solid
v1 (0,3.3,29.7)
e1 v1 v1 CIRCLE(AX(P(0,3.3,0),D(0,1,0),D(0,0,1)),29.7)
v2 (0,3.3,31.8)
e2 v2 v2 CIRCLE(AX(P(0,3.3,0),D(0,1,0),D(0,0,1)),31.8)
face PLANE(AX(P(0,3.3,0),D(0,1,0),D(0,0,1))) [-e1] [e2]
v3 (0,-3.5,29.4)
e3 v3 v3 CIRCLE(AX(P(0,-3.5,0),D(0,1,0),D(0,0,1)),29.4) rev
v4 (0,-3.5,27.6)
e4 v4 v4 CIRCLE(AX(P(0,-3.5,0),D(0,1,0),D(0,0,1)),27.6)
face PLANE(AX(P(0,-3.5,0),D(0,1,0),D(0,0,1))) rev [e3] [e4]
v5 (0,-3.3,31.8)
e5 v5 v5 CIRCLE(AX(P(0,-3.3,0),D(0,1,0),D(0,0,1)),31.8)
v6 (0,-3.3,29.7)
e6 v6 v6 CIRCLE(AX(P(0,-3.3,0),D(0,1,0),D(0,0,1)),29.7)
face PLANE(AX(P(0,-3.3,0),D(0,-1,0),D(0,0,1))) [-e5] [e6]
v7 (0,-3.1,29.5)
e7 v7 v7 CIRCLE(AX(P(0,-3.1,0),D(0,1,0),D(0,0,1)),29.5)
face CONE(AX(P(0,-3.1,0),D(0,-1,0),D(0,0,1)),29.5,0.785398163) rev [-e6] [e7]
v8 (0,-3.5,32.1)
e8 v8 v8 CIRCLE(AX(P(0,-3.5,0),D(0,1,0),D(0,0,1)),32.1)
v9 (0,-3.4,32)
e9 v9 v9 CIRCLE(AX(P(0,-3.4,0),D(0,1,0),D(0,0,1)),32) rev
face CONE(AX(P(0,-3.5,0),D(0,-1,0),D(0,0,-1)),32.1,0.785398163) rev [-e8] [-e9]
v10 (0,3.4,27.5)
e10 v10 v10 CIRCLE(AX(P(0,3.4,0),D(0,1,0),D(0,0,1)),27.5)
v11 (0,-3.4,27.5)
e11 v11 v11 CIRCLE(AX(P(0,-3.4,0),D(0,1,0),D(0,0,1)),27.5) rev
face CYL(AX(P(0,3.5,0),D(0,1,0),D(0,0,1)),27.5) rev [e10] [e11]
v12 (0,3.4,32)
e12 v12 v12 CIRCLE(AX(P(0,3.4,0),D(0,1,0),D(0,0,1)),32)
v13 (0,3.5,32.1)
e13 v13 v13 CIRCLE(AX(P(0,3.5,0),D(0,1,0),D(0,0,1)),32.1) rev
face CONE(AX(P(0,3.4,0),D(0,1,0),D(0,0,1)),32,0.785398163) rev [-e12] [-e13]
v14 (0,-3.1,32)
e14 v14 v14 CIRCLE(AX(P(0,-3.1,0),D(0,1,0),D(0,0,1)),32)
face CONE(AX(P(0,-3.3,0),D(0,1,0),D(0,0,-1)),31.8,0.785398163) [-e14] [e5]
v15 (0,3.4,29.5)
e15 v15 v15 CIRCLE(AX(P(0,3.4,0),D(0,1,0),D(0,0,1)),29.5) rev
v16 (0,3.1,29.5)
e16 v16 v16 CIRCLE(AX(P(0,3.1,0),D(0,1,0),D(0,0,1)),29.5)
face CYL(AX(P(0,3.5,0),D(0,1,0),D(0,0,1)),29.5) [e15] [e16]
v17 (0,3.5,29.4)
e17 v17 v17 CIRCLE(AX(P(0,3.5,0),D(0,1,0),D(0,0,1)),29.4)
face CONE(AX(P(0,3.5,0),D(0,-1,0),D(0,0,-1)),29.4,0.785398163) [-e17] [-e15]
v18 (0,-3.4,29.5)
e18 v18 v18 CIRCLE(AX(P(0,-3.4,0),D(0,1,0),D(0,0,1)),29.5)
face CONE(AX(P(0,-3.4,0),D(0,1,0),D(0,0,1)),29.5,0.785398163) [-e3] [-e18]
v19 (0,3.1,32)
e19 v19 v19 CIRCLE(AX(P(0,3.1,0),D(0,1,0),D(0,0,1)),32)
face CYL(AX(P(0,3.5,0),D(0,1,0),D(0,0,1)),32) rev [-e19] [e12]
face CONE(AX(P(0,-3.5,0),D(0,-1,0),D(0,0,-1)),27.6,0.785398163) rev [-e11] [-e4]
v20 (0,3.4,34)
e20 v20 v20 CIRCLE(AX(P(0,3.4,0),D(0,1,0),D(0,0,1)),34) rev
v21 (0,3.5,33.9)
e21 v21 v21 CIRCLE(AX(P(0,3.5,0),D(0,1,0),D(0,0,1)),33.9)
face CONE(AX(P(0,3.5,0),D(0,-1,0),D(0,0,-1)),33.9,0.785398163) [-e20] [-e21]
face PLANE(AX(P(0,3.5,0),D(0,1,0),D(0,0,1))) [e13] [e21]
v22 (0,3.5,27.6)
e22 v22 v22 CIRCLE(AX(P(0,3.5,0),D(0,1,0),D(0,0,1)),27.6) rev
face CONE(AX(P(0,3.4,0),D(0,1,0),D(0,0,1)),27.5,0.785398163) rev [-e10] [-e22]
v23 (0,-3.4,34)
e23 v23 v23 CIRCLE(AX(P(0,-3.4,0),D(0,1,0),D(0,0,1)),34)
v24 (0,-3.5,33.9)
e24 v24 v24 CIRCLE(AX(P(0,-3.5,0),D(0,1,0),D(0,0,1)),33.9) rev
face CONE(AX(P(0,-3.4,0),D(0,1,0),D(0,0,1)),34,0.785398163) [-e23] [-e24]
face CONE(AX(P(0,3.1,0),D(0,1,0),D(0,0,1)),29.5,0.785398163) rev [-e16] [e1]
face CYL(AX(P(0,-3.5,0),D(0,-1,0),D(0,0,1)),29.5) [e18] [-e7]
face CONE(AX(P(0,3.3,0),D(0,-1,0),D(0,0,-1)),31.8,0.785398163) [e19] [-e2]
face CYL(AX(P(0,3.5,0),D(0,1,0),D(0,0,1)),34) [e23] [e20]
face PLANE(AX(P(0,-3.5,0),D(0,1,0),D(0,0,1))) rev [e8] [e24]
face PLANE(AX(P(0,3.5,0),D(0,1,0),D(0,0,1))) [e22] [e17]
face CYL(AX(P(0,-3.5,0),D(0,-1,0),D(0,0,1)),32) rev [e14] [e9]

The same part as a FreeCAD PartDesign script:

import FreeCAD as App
import Part
import Sketcher

V = App.Vector


def edges_at(feature, points):
    """Names of the edges that pass closest to the given points."""
    edges = feature.Shape.Edges
    near = lambda p: min(range(len(edges)), key=lambda i: edges[i].distToShape(Part.Vertex(*p))[0])
    return sorted({f"Edge{near(p) + 1}" for p in points})

doc = App.newDocument("Part")
body = doc.addObject("PartDesign::Body", "Body")

# Sketch on YZ plane
sketch1 = body.newObject("Sketcher::SketchObject", "Sketch")
sketch1.AttachmentSupport = (doc.getObject("YZ_Plane"), [""])
sketch1.MapMode = "FlatFace"
sketch1.addGeometry([
    Part.LineSegment(V(3.5, -27.5, 0), V(-3.5, -27.5, 0)),
    Part.LineSegment(V(-3.5, -27.5, 0), V(-3.5, -34, 0)),
    Part.LineSegment(V(-3.5, -34, 0), V(3.5, -34, 0)),
    Part.LineSegment(V(3.5, -34, 0), V(3.5, -27.5, 0)),
], False)
sketch1.addConstraint([
    Sketcher.Constraint("Coincident", 0, 2, 1, 1),
    Sketcher.Constraint("Coincident", 1, 2, 2, 1),
    Sketcher.Constraint("Coincident", 2, 2, 3, 1),
    Sketcher.Constraint("Coincident", 3, 2, 0, 1),
    Sketcher.Constraint("Horizontal", 0),
    Sketcher.Constraint("Vertical", 1),
    Sketcher.Constraint("Horizontal", 2),
    Sketcher.Constraint("Vertical", 3),
    Sketcher.Constraint("DistanceX", 0, 2, 0, 1, 7.0),
    Sketcher.Constraint("DistanceY", 1, 2, 1, 1, 6.5),
    Sketcher.Constraint("DistanceY", 1, 2, -1, 1, 34.0),
    Sketcher.Constraint("DistanceX", 0, 2, -1, 1, 3.5),
])
revolution = body.newObject("PartDesign::Revolution", "Revolution")
revolution.Profile = sketch1
revolution.ReferenceAxis = (sketch1, ["H_Axis"])
revolution.Angle = 360

# Sketch on YZ plane
sketch2 = body.newObject("Sketcher::SketchObject", "Sketch001")
sketch2.AttachmentSupport = (doc.getObject("YZ_Plane"), [""])
sketch2.MapMode = "FlatFace"
sketch2.addGeometry([
    Part.LineSegment(V(3.3, -31.8, 0), V(3.1, -32, 0)),  # 0
    Part.LineSegment(V(3.1, -32, 0), V(3.5, -32, 0)),  # 1
    Part.LineSegment(V(3.5, -32, 0), V(3.5, -29.5, 0)),  # 2
    Part.LineSegment(V(3.5, -29.5, 0), V(3.1, -29.5, 0)),  # 3
    Part.LineSegment(V(3.1, -29.5, 0), V(3.3, -29.7, 0)),  # 4
    Part.LineSegment(V(3.3, -29.7, 0), V(3.3, -31.8, 0)),  # 5
], False)
sketch2.addConstraint([
    Sketcher.Constraint("Coincident", 0, 2, 1, 1),
    Sketcher.Constraint("Coincident", 1, 2, 2, 1),
    Sketcher.Constraint("Coincident", 2, 2, 3, 1),
    Sketcher.Constraint("Coincident", 3, 2, 4, 1),
    Sketcher.Constraint("Coincident", 4, 2, 5, 1),
    Sketcher.Constraint("Coincident", 5, 2, 0, 1),
    Sketcher.Constraint("Horizontal", 1),
    Sketcher.Constraint("Vertical", 2),
    Sketcher.Constraint("Horizontal", 3),
    Sketcher.Constraint("Vertical", 5),
    Sketcher.Constraint("Perpendicular", 0, 4),
    Sketcher.Constraint("Vertical", 0, 2, 3, 2),
    Sketcher.Constraint("Equal", 0, 4),
    Sketcher.Constraint("DistanceX", 1, 1, 1, 2, 0.4),
    Sketcher.Constraint("DistanceY", 2, 1, 2, 2, 2.5),
    Sketcher.Constraint("DistanceY", 5, 2, 5, 1, 2.1),
    Sketcher.Constraint("DistanceY", 0, 2, -1, 1, 32.0),
    Sketcher.Constraint("DistanceX", -1, 1, 0, 2, 3.1),
])
groove = body.newObject("PartDesign::Groove", "Groove")
groove.Profile = sketch2
groove.ReferenceAxis = (sketch2, ["H_Axis"])
groove.Angle = 360
doc.recompute()

mirrored = body.newObject("PartDesign::Mirrored", "Mirrored")
mirrored.Originals = [groove]
mirrored.MirrorPlane = (doc.getObject("XZ_Plane"), [""])
body.Tip = mirrored
doc.recompute()

chamfer = body.newObject("PartDesign::Chamfer", "Chamfer")
chamfer.Base = (mirrored, edges_at(mirrored, [
    (0, 3.5, 32),
    (0, 3.5, 29.5),
    (0, -3.5, 32),
    (0, -3.5, 29.5),
    (0, 3.5, 34),
    (0, -3.5, 34),
    (0, -3.5, 27.5),
    (0, 3.5, 27.5),
]))
chamfer.Size = 0.1

doc.recompute()
